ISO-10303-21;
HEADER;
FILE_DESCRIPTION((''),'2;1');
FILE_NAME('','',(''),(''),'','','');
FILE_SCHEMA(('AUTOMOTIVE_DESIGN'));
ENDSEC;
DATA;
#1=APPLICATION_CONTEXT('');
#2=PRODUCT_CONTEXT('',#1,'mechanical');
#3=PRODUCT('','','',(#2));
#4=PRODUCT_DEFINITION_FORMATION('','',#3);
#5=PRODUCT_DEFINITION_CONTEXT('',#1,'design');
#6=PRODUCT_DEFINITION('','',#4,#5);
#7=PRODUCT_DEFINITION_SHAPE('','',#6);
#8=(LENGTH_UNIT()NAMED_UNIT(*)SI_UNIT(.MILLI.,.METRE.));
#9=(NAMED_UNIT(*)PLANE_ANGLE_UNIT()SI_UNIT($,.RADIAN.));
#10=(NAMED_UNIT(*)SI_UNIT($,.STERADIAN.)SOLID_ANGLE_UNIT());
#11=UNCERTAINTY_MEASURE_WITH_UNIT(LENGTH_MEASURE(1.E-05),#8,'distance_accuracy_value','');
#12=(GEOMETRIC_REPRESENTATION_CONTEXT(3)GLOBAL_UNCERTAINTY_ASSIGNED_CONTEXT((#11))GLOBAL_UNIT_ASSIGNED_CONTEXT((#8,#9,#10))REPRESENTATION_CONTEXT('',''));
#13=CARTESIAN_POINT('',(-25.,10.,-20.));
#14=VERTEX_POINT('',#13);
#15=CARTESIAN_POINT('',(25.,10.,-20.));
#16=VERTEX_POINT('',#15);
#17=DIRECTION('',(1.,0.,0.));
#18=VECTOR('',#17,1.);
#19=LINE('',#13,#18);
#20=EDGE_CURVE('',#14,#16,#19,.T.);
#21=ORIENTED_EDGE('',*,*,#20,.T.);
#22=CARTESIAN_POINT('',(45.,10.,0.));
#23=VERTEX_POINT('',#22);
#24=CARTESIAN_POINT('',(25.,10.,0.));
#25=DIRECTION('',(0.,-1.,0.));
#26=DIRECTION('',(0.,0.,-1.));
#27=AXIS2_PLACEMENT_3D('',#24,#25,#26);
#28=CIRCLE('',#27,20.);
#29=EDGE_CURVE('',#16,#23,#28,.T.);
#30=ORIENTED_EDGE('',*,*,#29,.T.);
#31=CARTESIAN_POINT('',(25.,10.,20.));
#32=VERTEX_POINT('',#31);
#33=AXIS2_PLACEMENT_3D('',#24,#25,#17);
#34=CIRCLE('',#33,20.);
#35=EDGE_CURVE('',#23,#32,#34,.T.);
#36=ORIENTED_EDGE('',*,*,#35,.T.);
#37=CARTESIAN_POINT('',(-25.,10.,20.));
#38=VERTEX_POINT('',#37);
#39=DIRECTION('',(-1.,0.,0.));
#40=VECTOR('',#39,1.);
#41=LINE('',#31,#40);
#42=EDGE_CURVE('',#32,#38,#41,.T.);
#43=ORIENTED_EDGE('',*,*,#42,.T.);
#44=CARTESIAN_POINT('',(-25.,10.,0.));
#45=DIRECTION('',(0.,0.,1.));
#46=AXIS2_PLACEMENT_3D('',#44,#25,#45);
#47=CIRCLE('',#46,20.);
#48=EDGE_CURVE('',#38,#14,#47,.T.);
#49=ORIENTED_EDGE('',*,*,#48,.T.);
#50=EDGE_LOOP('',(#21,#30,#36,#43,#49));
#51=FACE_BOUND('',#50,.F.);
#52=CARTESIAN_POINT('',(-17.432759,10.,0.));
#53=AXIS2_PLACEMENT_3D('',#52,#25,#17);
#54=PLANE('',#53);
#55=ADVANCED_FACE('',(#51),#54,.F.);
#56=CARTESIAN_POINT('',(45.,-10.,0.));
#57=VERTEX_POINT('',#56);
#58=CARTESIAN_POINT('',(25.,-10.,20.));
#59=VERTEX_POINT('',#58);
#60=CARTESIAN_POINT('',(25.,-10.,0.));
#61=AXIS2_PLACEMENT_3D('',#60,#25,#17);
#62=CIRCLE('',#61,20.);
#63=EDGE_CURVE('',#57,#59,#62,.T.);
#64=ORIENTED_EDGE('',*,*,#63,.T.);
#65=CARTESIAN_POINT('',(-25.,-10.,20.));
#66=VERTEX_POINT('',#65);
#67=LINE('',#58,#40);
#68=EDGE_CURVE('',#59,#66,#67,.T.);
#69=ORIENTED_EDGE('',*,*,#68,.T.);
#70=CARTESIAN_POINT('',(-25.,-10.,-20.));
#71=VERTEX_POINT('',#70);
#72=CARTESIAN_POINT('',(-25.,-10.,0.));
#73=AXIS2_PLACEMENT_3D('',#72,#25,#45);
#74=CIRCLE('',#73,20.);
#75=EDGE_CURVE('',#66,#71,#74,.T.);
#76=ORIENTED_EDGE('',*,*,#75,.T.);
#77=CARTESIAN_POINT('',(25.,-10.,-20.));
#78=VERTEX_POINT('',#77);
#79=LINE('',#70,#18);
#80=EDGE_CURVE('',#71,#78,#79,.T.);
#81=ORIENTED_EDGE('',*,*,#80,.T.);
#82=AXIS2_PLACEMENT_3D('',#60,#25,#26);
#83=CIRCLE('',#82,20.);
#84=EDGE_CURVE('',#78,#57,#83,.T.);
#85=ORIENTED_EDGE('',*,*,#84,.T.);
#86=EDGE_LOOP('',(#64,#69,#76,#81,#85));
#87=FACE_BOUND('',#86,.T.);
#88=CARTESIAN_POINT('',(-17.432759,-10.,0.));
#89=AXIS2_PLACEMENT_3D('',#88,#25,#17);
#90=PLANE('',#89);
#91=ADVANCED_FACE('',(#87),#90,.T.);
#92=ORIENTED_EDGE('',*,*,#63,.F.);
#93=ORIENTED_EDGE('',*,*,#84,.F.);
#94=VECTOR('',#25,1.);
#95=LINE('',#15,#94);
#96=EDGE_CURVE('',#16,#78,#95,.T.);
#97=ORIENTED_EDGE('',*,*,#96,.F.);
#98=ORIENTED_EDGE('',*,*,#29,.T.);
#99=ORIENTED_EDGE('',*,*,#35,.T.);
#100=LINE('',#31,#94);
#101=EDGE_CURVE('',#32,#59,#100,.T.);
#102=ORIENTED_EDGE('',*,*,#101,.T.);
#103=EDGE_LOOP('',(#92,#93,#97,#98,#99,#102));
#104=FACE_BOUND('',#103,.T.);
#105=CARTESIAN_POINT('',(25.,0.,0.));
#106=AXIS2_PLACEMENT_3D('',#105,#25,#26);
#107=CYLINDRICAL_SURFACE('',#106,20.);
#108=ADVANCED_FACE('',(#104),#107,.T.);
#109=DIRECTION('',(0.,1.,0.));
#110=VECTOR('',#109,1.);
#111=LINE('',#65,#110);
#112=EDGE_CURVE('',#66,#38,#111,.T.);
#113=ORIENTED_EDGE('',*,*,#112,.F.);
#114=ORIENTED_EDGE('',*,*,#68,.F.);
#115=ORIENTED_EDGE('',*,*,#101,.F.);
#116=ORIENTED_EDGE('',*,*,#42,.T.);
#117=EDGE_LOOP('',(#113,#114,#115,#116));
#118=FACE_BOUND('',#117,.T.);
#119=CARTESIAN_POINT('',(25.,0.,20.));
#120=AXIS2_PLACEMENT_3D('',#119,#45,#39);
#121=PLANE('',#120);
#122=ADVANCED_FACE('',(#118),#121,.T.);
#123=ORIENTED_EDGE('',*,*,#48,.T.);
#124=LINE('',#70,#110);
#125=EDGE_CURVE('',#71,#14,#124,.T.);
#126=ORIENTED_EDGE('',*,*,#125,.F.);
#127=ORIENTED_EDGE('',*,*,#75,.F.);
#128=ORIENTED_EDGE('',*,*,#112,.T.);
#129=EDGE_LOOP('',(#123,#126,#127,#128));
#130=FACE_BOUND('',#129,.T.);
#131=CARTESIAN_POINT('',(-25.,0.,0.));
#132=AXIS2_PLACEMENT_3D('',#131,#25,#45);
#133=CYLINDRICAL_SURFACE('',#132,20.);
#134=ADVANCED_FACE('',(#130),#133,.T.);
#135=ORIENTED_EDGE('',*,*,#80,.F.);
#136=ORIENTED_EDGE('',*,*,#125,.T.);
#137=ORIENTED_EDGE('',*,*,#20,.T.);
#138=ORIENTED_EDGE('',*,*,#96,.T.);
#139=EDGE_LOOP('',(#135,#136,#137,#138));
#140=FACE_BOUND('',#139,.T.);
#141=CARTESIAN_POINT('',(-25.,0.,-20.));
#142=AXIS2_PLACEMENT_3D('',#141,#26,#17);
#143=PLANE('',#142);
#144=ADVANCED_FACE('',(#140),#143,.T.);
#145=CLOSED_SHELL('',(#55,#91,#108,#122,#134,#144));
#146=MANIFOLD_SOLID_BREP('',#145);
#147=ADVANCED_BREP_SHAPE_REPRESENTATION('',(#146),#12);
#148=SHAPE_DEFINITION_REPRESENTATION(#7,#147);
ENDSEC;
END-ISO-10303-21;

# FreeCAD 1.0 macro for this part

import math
import FreeCAD as App
import Part
import Sketcher
from FreeCAD import Vector
Q = App.Units.Quantity

doc = App.newDocument("Part")
params = doc.addObject("Spreadsheet::Sheet", "Params")
for row, (alias, value) in enumerate([
    ("sketch1_radius", "20 mm"),
    ("sketch1_width", "50 mm"),
    ("pad1_length", "20 mm"),
], start=1):
    params.set(f"A{row}", alias)
    params.set(f"B{row}", "=" + value)
    params.setAlias(f"B{row}", alias)

body = doc.addObject("PartDesign::Body", "Body")

# Sketch on XZ plane
sketch1 = doc.addObject("Sketcher::SketchObject", "Sketch")
body.addObject(sketch1)
sketch1.AttachmentSupport = (doc.XZ_Plane, [""])
sketch1.MapMode = "FlatFace"
sketch1.addGeometry(Part.LineSegment(Vector(-25, -20, 0), Vector(25, -20, 0)), False)
sketch1.addGeometry(Part.ArcOfCircle(Part.Circle(Vector(25, 0, 0), Vector(0, 0, 1), 20), math.radians(-90), math.radians(0)), False)
sketch1.addGeometry(Part.ArcOfCircle(Part.Circle(Vector(25, 0, 0), Vector(0, 0, 1), 20), math.radians(0), math.radians(90)), False)
sketch1.addGeometry(Part.LineSegment(Vector(25, 20, 0), Vector(-25, 20, 0)), False)
sketch1.addGeometry(Part.ArcOfCircle(Part.Circle(Vector(-25, 0, 0), Vector(0, 0, 1), 20), math.radians(90), math.radians(270)), False)
sketch1.addConstraint(Sketcher.Constraint("Tangent", 0, 2, 1, 1))
sketch1.addConstraint(Sketcher.Constraint("Tangent", 1, 2, 2, 1))
sketch1.addConstraint(Sketcher.Constraint("Tangent", 2, 2, 3, 1))
sketch1.addConstraint(Sketcher.Constraint("Tangent", 3, 2, 4, 1))
sketch1.addConstraint(Sketcher.Constraint("Tangent", 4, 2, 0, 1))
sketch1.addConstraint(Sketcher.Constraint("Horizontal", 0))
sketch1.addConstraint(Sketcher.Constraint("Horizontal", 3))
sketch1.addConstraint(Sketcher.Constraint("Equal", 1, 2))
sketch1.addConstraint(Sketcher.Constraint("Symmetric", 1, 3, 4, 3, -1, 1))
sketch1.addConstraint(Sketcher.Constraint("PointOnObject", 1, 2, -1))
sketch1.addConstraint(Sketcher.Constraint("Radius", 1, Q("20 mm")))
sketch1.addConstraint(Sketcher.Constraint("DistanceX", 0, 1, 0, 2, Q("50 mm")))
sketch1.setExpression("Constraints[10]", "Params.sketch1_radius")
sketch1.setExpression("Constraints[11]", "Params.sketch1_width")
pad1 = doc.addObject("PartDesign::Pad", "Pad")
body.addObject(pad1)
pad1.Profile = sketch1
pad1.setExpression("Length", "Params.pad1_length")
pad1.Midplane = True

doc.recompute()
